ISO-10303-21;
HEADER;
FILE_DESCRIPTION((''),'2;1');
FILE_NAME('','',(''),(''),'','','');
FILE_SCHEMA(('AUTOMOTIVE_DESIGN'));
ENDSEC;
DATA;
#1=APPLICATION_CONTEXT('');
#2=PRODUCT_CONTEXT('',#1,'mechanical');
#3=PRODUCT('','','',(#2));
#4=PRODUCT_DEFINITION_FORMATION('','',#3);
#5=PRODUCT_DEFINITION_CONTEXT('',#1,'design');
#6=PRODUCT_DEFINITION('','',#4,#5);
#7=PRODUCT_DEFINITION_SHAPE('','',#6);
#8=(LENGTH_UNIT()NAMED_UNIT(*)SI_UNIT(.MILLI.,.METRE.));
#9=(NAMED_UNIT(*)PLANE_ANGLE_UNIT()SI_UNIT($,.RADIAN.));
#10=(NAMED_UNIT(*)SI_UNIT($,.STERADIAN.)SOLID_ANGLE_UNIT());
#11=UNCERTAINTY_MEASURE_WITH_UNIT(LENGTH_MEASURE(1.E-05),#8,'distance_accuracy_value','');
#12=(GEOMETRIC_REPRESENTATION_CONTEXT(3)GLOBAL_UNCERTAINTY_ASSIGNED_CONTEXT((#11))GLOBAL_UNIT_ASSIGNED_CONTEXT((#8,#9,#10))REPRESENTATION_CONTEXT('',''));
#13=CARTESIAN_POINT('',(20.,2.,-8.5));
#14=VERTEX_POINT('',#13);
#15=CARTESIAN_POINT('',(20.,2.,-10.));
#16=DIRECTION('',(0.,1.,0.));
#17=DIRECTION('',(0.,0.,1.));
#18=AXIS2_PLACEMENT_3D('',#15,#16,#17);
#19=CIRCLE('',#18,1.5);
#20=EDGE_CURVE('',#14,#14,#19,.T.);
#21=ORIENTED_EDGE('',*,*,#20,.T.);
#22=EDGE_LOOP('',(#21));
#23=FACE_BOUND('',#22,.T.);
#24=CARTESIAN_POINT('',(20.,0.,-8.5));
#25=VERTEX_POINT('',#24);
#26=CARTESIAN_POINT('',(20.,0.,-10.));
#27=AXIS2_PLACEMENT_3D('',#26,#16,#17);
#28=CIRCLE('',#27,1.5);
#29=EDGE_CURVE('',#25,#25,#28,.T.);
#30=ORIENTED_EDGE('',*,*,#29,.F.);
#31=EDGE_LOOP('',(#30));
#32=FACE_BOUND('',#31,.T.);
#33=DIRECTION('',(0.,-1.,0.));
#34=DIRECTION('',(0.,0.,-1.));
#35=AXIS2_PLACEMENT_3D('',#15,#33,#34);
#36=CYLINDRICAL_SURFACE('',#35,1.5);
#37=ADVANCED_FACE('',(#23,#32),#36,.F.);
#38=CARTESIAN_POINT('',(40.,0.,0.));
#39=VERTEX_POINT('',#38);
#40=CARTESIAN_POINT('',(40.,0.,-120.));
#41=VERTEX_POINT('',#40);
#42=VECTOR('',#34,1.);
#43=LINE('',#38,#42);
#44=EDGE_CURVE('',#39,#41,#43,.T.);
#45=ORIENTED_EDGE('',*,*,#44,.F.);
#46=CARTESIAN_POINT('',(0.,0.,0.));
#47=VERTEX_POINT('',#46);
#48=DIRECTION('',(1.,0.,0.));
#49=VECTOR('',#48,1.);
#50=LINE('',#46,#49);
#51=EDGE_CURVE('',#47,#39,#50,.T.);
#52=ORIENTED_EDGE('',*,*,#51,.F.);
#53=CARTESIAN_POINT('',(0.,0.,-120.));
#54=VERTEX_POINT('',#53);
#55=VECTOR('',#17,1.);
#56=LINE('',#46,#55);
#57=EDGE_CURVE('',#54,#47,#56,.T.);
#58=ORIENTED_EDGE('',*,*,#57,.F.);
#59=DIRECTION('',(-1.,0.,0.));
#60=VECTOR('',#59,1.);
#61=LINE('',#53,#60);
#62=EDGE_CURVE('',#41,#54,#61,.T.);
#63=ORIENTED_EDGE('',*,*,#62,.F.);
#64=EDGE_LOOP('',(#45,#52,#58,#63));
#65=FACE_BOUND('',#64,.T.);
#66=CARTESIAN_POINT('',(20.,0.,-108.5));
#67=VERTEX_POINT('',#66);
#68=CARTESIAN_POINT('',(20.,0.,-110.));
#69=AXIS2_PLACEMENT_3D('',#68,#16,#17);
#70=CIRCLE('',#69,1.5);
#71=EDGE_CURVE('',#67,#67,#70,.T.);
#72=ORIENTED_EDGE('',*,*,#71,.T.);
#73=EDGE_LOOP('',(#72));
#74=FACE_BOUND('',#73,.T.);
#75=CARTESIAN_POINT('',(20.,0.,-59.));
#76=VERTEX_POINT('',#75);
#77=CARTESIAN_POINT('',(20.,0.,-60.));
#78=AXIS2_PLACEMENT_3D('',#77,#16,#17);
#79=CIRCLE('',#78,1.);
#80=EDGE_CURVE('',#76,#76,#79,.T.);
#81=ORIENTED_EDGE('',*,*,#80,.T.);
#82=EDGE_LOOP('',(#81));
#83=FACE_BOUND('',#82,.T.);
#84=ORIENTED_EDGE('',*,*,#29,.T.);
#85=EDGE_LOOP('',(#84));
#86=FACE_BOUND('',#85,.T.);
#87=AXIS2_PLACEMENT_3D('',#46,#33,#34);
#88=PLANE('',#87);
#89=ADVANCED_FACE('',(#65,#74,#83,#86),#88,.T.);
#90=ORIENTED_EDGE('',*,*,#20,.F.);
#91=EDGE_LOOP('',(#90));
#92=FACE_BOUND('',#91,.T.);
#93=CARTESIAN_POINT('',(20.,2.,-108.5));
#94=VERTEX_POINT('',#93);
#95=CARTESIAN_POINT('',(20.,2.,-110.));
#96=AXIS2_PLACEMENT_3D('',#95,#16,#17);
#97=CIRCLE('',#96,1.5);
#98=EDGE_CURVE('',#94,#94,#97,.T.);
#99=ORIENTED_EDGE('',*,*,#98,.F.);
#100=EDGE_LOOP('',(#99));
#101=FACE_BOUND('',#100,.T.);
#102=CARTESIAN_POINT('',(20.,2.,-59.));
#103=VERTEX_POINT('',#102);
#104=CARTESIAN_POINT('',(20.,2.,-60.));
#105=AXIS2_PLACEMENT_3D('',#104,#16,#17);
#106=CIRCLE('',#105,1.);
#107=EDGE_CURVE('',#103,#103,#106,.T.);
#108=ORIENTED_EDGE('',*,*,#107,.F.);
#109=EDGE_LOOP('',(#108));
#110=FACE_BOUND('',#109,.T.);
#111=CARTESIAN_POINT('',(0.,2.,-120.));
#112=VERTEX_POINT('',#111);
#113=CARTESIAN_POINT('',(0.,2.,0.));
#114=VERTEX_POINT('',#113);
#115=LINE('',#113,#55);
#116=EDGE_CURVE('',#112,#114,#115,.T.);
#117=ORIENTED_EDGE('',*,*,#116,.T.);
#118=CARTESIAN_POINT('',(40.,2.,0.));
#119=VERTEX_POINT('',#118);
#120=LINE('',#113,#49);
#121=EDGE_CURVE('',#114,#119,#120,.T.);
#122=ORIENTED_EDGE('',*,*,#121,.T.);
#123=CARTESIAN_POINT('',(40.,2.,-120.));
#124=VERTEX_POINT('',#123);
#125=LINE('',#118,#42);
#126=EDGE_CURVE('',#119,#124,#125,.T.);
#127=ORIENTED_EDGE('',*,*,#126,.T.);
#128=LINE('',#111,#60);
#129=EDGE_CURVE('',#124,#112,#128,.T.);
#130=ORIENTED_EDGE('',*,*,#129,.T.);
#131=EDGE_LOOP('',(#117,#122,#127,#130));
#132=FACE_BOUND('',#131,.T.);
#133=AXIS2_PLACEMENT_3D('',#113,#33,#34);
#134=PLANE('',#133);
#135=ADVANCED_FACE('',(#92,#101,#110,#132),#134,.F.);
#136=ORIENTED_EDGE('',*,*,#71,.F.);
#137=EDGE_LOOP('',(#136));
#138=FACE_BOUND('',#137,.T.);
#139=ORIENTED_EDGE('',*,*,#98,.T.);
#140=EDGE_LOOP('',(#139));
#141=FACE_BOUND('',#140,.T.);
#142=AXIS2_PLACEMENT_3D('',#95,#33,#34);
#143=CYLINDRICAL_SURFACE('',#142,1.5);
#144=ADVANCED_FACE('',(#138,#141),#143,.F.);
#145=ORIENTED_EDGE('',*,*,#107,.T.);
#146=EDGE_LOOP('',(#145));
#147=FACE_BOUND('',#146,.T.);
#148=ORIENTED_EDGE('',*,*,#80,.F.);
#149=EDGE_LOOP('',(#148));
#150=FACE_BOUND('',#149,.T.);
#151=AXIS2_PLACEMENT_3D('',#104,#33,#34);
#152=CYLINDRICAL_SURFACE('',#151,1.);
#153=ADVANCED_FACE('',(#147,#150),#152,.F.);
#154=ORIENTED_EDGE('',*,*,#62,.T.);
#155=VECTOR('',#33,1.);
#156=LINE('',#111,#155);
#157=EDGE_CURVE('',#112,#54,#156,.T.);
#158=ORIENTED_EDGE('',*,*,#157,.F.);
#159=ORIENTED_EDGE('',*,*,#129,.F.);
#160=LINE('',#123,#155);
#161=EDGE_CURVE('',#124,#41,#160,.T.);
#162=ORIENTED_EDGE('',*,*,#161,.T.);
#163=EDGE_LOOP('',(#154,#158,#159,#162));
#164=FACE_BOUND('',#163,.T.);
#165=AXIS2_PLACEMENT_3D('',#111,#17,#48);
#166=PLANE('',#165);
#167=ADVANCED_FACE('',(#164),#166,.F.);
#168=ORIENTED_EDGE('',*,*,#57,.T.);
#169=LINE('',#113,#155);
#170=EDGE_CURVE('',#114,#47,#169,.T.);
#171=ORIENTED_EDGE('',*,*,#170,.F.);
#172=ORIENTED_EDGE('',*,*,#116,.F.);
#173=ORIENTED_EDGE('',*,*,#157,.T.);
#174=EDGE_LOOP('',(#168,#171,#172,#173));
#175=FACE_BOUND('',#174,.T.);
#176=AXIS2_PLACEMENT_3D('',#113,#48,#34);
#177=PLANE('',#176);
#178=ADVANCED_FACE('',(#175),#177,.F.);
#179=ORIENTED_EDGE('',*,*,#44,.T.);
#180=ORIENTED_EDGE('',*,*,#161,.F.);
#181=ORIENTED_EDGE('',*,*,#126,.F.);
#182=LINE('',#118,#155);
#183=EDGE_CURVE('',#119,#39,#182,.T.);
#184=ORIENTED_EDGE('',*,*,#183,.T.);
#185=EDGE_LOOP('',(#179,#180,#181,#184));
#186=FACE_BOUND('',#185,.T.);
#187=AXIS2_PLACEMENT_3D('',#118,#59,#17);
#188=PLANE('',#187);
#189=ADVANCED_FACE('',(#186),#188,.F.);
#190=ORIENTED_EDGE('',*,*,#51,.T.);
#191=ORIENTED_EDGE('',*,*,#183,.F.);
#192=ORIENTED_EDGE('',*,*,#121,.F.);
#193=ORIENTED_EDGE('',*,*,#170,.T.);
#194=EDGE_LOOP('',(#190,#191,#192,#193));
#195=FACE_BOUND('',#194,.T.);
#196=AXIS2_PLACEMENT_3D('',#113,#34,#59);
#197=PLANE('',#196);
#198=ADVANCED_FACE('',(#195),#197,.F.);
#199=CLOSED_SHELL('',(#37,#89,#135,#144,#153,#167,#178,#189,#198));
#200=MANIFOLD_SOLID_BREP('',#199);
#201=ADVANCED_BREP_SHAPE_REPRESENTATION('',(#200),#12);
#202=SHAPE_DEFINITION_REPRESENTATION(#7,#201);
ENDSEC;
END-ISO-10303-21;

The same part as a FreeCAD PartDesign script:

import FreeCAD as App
import Part
import Sketcher
from FreeCAD import Vector
Q = App.Units.Quantity

doc = App.newDocument("Part")
body = doc.addObject("PartDesign::Body", "Body")

# Sketch on XZ plane
sketch1 = doc.addObject("Sketcher::SketchObject", "Sketch")
body.addObject(sketch1)
sketch1.AttachmentSupport = (doc.XZ_Plane, [""])
sketch1.MapMode = "FlatFace"
sketch1.addGeometry([
    Part.LineSegment(Vector(0, -120, 0), Vector(0, 0, 0)),  # 0
    Part.LineSegment(Vector(0, 0, 0), Vector(40, 0, 0)),  # 1
    Part.LineSegment(Vector(40, 0, 0), Vector(40, -120, 0)),  # 2
    Part.LineSegment(Vector(40, -120, 0), Vector(0, -120, 0)),  # 3
    Part.Circle(Vector(20, -10, 0), Vector(0, 0, 1), 1.5),  # 4
    Part.Circle(Vector(20, -60, 0), Vector(0, 0, 1), 1),  # 5
    Part.Circle(Vector(20, -110, 0), Vector(0, 0, 1), 1.5),  # 6
], False)
sketch1.addConstraint([
    Sketcher.Constraint("Coincident", 0, 2, 1, 1),
    Sketcher.Constraint("Coincident", 1, 2, 2, 1),
    Sketcher.Constraint("Coincident", 2, 2, 3, 1),
    Sketcher.Constraint("Coincident", 3, 2, 0, 1),
    Sketcher.Constraint("Vertical", 0),
    Sketcher.Constraint("Horizontal", 1),
    Sketcher.Constraint("Vertical", 2),
    Sketcher.Constraint("Horizontal", 3),
    Sketcher.Constraint("Coincident", 0, 2, -1, 1),
    Sketcher.Constraint("Equal", 4, 6),
    Sketcher.Constraint("Vertical", 4, 3, 5, 3),
    Sketcher.Constraint("Vertical", 5, 3, 6, 3),
    Sketcher.Constraint("Diameter", 4, Q("3 mm")),
    Sketcher.Constraint("Diameter", 5, Q("2 mm")),
    Sketcher.Constraint("DistanceX", 1, 1, 1, 2, Q("40 mm")),
    Sketcher.Constraint("DistanceY", 0, 1, 0, 2, Q("120 mm")),
    Sketcher.Constraint("DistanceX", -1, 1, 4, 3, Q("20 mm")),
    Sketcher.Constraint("DistanceY", 4, 3, -1, 1, Q("10 mm")),
    Sketcher.Constraint("DistanceY", 5, 3, -1, 1, Q("60 mm")),
    Sketcher.Constraint("DistanceY", 6, 3, -1, 1, Q("110 mm")),
])
pad1 = doc.addObject("PartDesign::Pad", "Pad")
body.addObject(pad1)
pad1.Profile = sketch1
pad1.Length = 2
pad1.Reversed = True

doc.recompute()
